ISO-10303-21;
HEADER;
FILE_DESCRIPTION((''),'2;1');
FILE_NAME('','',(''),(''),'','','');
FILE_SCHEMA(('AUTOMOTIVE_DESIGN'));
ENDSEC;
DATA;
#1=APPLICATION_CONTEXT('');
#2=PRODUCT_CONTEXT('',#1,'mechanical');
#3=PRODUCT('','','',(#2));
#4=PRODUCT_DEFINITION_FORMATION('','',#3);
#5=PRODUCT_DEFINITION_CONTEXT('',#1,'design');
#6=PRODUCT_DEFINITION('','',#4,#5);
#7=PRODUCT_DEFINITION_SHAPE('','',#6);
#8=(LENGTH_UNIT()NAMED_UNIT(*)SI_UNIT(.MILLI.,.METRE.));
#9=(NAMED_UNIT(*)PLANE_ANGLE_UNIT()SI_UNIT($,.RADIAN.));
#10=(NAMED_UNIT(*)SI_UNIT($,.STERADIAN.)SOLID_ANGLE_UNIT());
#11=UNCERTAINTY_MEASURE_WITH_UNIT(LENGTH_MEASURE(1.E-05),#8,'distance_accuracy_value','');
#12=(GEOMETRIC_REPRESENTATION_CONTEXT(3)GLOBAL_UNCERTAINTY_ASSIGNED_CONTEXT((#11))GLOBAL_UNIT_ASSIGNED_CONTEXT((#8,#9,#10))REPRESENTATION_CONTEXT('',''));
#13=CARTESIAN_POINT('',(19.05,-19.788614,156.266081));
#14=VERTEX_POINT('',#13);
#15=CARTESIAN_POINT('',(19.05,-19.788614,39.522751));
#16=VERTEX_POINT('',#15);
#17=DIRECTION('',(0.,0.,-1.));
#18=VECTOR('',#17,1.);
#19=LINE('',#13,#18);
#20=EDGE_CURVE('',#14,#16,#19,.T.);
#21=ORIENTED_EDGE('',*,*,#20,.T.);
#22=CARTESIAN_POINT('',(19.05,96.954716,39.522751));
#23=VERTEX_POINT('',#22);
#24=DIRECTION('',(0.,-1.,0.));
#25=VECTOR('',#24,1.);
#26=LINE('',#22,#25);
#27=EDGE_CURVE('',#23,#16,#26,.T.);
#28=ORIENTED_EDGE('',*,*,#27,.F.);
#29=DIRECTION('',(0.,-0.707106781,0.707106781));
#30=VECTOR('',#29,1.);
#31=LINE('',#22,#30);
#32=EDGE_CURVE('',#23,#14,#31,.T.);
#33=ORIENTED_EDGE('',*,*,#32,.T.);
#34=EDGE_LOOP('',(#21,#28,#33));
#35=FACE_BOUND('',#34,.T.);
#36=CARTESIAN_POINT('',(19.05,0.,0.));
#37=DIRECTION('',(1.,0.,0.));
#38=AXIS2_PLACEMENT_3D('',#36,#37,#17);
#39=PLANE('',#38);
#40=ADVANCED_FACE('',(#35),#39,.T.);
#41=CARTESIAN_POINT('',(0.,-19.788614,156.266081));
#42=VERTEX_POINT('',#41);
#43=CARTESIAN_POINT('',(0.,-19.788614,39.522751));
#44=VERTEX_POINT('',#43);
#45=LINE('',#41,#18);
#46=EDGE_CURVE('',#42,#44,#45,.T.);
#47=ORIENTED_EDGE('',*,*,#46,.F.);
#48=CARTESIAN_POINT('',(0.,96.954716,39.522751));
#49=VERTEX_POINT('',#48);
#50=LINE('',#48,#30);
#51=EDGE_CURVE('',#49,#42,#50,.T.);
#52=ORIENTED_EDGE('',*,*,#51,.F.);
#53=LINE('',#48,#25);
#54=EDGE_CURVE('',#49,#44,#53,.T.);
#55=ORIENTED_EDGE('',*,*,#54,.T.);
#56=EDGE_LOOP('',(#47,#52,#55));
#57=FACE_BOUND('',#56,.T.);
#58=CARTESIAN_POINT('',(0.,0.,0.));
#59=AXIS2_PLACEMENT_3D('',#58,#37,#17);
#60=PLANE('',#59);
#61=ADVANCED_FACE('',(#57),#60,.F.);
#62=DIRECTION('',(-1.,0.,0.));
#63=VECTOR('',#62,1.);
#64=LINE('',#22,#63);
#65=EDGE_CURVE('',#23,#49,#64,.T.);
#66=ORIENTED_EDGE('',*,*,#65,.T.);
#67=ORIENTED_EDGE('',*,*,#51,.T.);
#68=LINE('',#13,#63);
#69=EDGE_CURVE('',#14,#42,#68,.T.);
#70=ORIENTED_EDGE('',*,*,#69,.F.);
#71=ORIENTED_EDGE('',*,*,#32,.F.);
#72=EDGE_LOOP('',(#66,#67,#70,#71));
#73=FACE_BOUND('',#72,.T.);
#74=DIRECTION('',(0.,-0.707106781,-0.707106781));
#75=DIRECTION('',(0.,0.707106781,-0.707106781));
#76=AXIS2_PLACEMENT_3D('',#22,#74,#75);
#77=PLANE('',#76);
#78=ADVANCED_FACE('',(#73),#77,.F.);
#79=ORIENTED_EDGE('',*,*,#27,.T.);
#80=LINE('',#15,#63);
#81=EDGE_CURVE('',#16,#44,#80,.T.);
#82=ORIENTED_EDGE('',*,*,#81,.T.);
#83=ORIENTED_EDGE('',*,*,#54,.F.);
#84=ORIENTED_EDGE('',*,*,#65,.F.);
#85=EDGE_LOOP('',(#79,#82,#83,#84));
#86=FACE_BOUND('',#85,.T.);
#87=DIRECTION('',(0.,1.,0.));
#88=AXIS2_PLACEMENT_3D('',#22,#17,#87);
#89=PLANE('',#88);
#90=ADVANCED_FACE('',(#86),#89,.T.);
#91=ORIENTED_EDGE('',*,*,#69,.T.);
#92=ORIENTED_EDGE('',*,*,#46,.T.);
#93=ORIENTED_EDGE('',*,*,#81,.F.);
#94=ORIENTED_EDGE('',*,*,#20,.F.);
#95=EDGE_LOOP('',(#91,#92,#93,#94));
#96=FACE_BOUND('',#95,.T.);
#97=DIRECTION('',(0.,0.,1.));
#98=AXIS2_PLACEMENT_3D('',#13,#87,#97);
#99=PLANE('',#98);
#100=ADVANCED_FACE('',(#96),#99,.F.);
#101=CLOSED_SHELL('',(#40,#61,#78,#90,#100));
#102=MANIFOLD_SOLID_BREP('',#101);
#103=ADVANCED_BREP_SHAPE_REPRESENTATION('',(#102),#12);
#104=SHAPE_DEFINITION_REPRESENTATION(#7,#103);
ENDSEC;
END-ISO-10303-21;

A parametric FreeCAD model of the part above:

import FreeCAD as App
import Part
import Sketcher

V = App.Vector
Q = App.Units.Quantity


def add_polygon(sketch, points):
    """Adds a closed chain of lines whose ends are joined by coincident constraints."""
    first, n = sketch.GeometryCount, len(points)
    for a, b in zip(points, points[1:] + points[:1]):
        sketch.addGeometry(Part.LineSegment(App.Vector(*a, 0), App.Vector(*b, 0)), False)
    for i in range(n):
        sketch.addConstraint(Sketcher.Constraint("Coincident", first + i, 2, first + (i + 1) % n, 1))

doc = App.newDocument("Part")
body = doc.addObject("PartDesign::Body", "Body")

sketch1 = body.newObject("Sketcher::SketchObject", "Sketch")
sketch1.AttachmentSupport = (doc.getObject("YZ_Plane"), [""])
sketch1.MapMode = "FlatFace"
add_polygon(sketch1, [(97, 40), (-20, 156), (-20, 40)])
sketch1.addConstraint(Sketcher.Constraint("Vertical", 1))
sketch1.addConstraint(Sketcher.Constraint("Horizontal", 2))
sketch1.addConstraint(Sketcher.Constraint("Equal", 2, 1))
sketch1.addConstraint(Sketcher.Constraint("Distance", 0, Q("6.5 in")))
sketch1.addConstraint(Sketcher.Constraint("DistanceY", -1, 1, 0, 2, Q("156.266081 mm")))
sketch1.addConstraint(Sketcher.Constraint("DistanceX", 0, 2, -1, 1, Q("19.788614 mm")))
pad1 = body.newObject("PartDesign::Pad", "Pad")
pad1.Profile = sketch1
pad1.Length = Q("0.75 in")

doc.recompute()
